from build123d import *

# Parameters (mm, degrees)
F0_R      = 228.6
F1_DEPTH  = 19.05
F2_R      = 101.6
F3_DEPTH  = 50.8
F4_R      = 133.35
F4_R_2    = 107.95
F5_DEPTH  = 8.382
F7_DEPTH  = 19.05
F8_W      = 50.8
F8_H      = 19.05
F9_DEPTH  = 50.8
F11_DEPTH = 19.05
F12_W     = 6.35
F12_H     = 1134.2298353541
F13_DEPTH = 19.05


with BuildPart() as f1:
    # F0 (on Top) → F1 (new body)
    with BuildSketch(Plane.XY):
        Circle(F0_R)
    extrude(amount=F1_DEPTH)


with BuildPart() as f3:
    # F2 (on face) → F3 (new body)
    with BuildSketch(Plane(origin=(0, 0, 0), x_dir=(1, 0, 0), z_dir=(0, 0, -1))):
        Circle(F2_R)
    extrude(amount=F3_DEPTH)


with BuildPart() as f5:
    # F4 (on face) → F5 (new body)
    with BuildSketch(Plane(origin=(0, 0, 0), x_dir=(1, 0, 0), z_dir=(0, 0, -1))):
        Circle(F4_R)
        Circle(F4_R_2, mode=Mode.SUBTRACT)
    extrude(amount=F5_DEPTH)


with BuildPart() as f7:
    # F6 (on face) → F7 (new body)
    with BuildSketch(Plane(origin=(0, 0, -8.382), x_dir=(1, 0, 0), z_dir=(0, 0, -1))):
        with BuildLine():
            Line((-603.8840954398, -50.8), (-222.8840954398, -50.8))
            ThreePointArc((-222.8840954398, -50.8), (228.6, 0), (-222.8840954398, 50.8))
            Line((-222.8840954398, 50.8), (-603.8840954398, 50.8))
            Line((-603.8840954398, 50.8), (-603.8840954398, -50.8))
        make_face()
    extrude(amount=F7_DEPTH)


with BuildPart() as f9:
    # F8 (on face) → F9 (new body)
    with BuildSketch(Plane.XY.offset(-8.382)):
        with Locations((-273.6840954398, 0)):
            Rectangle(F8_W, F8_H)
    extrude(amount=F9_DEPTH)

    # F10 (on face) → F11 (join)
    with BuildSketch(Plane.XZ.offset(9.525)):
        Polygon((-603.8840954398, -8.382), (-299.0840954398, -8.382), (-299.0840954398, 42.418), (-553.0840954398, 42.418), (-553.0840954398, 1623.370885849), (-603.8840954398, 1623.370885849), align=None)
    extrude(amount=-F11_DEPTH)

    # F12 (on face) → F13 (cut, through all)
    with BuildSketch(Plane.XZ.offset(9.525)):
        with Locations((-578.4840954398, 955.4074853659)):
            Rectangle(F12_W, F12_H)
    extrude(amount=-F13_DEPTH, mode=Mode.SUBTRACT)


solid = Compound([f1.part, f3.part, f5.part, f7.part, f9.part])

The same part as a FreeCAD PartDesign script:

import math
import FreeCAD as App
import Part
import Sketcher

V = App.Vector
Q = App.Units.Quantity


def add_polygon(sketch, points):
    """Adds a closed chain of lines whose ends are joined by coincident constraints."""
    first, n = sketch.GeometryCount, len(points)
    for a, b in zip(points, points[1:] + points[:1]):
        sketch.addGeometry(Part.LineSegment(App.Vector(*a, 0), App.Vector(*b, 0)), False)
    for i in range(n):
        sketch.addConstraint(Sketcher.Constraint("Coincident", first + i, 2, first + (i + 1) % n, 1))

doc = App.newDocument("Part")
params = doc.addObject("Spreadsheet::Sheet", "Params")
for row, (alias, value) in enumerate([
    ("sketch1_diameter", "18 in"),
    ("pad1_length", "0.75 in"),
    ("sketch2_diameter", "8 in"),
    ("pad2_length", "2 in"),
    ("sketch3_diameter", "10.5 in"),
    ("sketch3_diameter2", "8.5 in"),
    ("pad3_length", "0.33 in"),
    ("sketch4_radius", "9 in"),
    ("sketch4_width", "15 in"),
    ("sketch4_height", "4 in"),
    ("pad4_length", "0.75 in"),
    ("sketch5_width", "2 in"),
    ("sketch5_height", "0.75 in"),
    ("pad5_length", "2 in"),
    ("sketch6_width", "12 in"),
    ("sketch6_width2", "10 in"),
    ("pad6_length", "0.75 in"),
    ("sketch7_width", "0.25 in"),
], start=1):
    params.set(f"A{row}", alias)
    params.set(f"B{row}", "=" + value)
    params.setAlias(f"B{row}", alias)

body = doc.addObject("PartDesign::Body", "Body")

sketch1 = body.newObject("Sketcher::SketchObject", "Sketch")
sketch1.AttachmentSupport = (doc.getObject("XY_Plane"), [""])
sketch1.MapMode = "FlatFace"
sketch1.addGeometry(Part.Circle(V(0, 0, 0), V(0, 0, 1), 228.6), False)
sketch1.addConstraint(Sketcher.Constraint("Coincident", 0, 3, -1, 1))
sketch1.addConstraint(Sketcher.Constraint("Diameter", 0, Q("18 in")))
sketch1.setExpression("Constraints[1]", "Params.sketch1_diameter")
pad1 = body.newObject("PartDesign::Pad", "Pad")
pad1.Profile = sketch1
pad1.setExpression("Length", "Params.pad1_length")
body2 = doc.addObject("PartDesign::Body", "Body001")

sketch2 = body2.newObject("Sketcher::SketchObject", "Sketch001")
sketch2.AttachmentSupport = (doc.getObject("XY_Plane001"), [""])
sketch2.MapMode = "FlatFace"
sketch2.addGeometry(Part.Circle(V(0, 0, 0), V(0, 0, 1), 101.6), False)
sketch2.addConstraint(Sketcher.Constraint("Coincident", 0, 3, -1, 1))
sketch2.addConstraint(Sketcher.Constraint("Diameter", 0, Q("8 in")))
sketch2.setExpression("Constraints[1]", "Params.sketch2_diameter")
pad2 = body2.newObject("PartDesign::Pad", "Pad001")
pad2.Profile = sketch2
pad2.setExpression("Length", "Params.pad2_length")
pad2.Reversed = True
body3 = doc.addObject("PartDesign::Body", "Body002")

sketch3 = body3.newObject("Sketcher::SketchObject", "Sketch002")
sketch3.AttachmentSupport = (doc.getObject("XY_Plane002"), [""])
sketch3.MapMode = "FlatFace"
sketch3.addGeometry(Part.Circle(V(0, 0, 0), V(0, 0, 1), 133.35), False)
sketch3.addGeometry(Part.Circle(V(0, 0, 0), V(0, 0, 1), 107.95), False)
sketch3.addConstraint(Sketcher.Constraint("Coincident", 0, 3, -1, 1))
sketch3.addConstraint(Sketcher.Constraint("Coincident", 1, 3, -1, 1))
sketch3.addConstraint(Sketcher.Constraint("Diameter", 0, Q("10.5 in")))
sketch3.addConstraint(Sketcher.Constraint("Diameter", 1, Q("8.5 in")))
sketch3.setExpression("Constraints[2]", "Params.sketch3_diameter")
sketch3.setExpression("Constraints[3]", "Params.sketch3_diameter2")
pad3 = body3.newObject("PartDesign::Pad", "Pad002")
pad3.Profile = sketch3
pad3.setExpression("Length", "Params.pad3_length")
pad3.Reversed = True
body4 = doc.addObject("PartDesign::Body", "Body003")

sketch4 = body4.newObject("Sketcher::SketchObject", "Sketch003")
sketch4.AttachmentSupport = (doc.getObject("XY_Plane003"), [""])
sketch4.MapMode = "FlatFace"
sketch4.AttachmentOffset = App.Placement(V(0, 0, -0.33 * 25.4), App.Rotation())
sketch4.addGeometry(Part.LineSegment(V(-603.884095, 50.8, 0), V(-222.884095, 50.8, 0)), False)
sketch4.addGeometry(Part.ArcOfCircle(Part.Circle(V(0, 0, 0), V(0, 0, 1), 228.6), math.radians(-167.160412), math.radians(167.160412)), False)
sketch4.addGeometry(Part.LineSegment(V(-222.884095, -50.8, 0), V(-603.884095, -50.8, 0)), False)
sketch4.addGeometry(Part.LineSegment(V(-603.884095, -50.8, 0), V(-603.884095, 50.8, 0)), False)
sketch4.addConstraint(Sketcher.Constraint("Coincident", 0, 2, 1, 2))
sketch4.addConstraint(Sketcher.Constraint("Coincident", 1, 1, 2, 1))
sketch4.addConstraint(Sketcher.Constraint("Coincident", 2, 2, 3, 1))
sketch4.addConstraint(Sketcher.Constraint("Coincident", 3, 2, 0, 1))
sketch4.addConstraint(Sketcher.Constraint("Horizontal", 0))
sketch4.addConstraint(Sketcher.Constraint("Horizontal", 2))
sketch4.addConstraint(Sketcher.Constraint("Vertical", 3))
sketch4.addConstraint(Sketcher.Constraint("Coincident", 1, 3, -1, 1))
sketch4.addConstraint(Sketcher.Constraint("Vertical", 0, 2, 1, 1))
sketch4.addConstraint(Sketcher.Constraint("Radius", 1, Q("9 in")))
sketch4.addConstraint(Sketcher.Constraint("DistanceX", 0, 1, 0, 2, Q("15 in")))
sketch4.addConstraint(Sketcher.Constraint("DistanceY", 3, 1, 3, 2, Q("4 in")))
sketch4.setExpression("Constraints[9]", "Params.sketch4_radius")
sketch4.setExpression("Constraints[10]", "Params.sketch4_width")
sketch4.setExpression("Constraints[11]", "Params.sketch4_height")
pad4 = body4.newObject("PartDesign::Pad", "Pad003")
pad4.Profile = sketch4
pad4.setExpression("Length", "Params.pad4_length")
pad4.Reversed = True
body5 = doc.addObject("PartDesign::Body", "Body004")

sketch5 = body5.newObject("Sketcher::SketchObject", "Sketch004")
sketch5.AttachmentSupport = (doc.getObject("XY_Plane004"), [""])
sketch5.MapMode = "FlatFace"
sketch5.AttachmentOffset = App.Placement(V(0, 0, -0.33 * 25.4), App.Rotation())
add_polygon(sketch5, [(-299.084095, 9.525), (-299.084095, -9.525), (-248.284095, -9.525), (-248.284095, 9.525)])
sketch5.addConstraint(Sketcher.Constraint("Vertical", 0))
sketch5.addConstraint(Sketcher.Constraint("Horizontal", 1))
sketch5.addConstraint(Sketcher.Constraint("Vertical", 2))
sketch5.addConstraint(Sketcher.Constraint("Horizontal", 3))
sketch5.addConstraint(Sketcher.Constraint("DistanceX", 1, 1, 1, 2, Q("2 in")))
sketch5.addConstraint(Sketcher.Constraint("DistanceY", 0, 2, 0, 1, Q("0.75 in")))
sketch5.addConstraint(Sketcher.Constraint("DistanceY", 0, 2, -1, 1, Q("0.375 in")))
sketch5.addConstraint(Sketcher.Constraint("DistanceX", 0, 2, -1, 1, 299.084095))
sketch5.setExpression("Constraints[8]", "Params.sketch5_width")
sketch5.setExpression("Constraints[9]", "Params.sketch5_height")
pad5 = body5.newObject("PartDesign::Pad", "Pad004")
pad5.Profile = sketch5
pad5.setExpression("Length", "Params.pad5_length")

sketch6 = body5.newObject("Sketcher::SketchObject", "Sketch005")
sketch6.AttachmentSupport = (doc.getObject("XZ_Plane004"), [""])
sketch6.MapMode = "FlatFace"
sketch6.AttachmentOffset = App.Placement(V(0, 0, 0.375 * 25.4), App.Rotation())
add_polygon(sketch6, [(-603.884095, -8.382), (-299.084095, -8.382), (-299.084095, 42.418), (-553.084095, 42.418), (-553.084095, 1623.370886), (-603.884095, 1623.370886)])
sketch6.addConstraint(Sketcher.Constraint("Horizontal", 0))
sketch6.addConstraint(Sketcher.Constraint("Vertical", 1))
sketch6.addConstraint(Sketcher.Constraint("Horizontal", 2))
sketch6.addConstraint(Sketcher.Constraint("Vertical", 3))
sketch6.addConstraint(Sketcher.Constraint("Horizontal", 4))
sketch6.addConstraint(Sketcher.Constraint("Vertical", 5))
sketch6.addConstraint(Sketcher.Constraint("Equal", 4, 1))
sketch6.addConstraint(Sketcher.Constraint("DistanceX", 0, 1, 0, 2, Q("12 in")))
sketch6.addConstraint(Sketcher.Constraint("DistanceX", 2, 2, 2, 1, Q("10 in")))
sketch6.addConstraint(Sketcher.Constraint("DistanceY", 0, 2, -1, 1, Q("0.33 in")))
sketch6.addConstraint(Sketcher.Constraint("DistanceY", 3, 1, 3, 2, 1580.952886))
sketch6.addConstraint(Sketcher.Constraint("DistanceX", 0, 2, -1, 1, 299.084095))
sketch6.setExpression("Constraints[13]", "Params.sketch6_width")
sketch6.setExpression("Constraints[14]", "Params.sketch6_width2")
pad6 = body5.newObject("PartDesign::Pad", "Pad005")
pad6.Profile = sketch6
pad6.setExpression("Length", "Params.pad6_length")
pad6.Reversed = True

sketch7 = body5.newObject("Sketcher::SketchObject", "Sketch006")
sketch7.AttachmentSupport = (doc.getObject("XZ_Plane004"), [""])
sketch7.MapMode = "FlatFace"
sketch7.AttachmentOffset = App.Placement(V(0, 0, 0.375 * 25.4), App.Rotation())
add_polygon(sketch7, [(-581.659095, 1522.522403), (-581.659095, 388.292568), (-575.309095, 388.292568), (-575.309095, 1522.522403)])
sketch7.addConstraint(Sketcher.Constraint("Vertical", 0))
sketch7.addConstraint(Sketcher.Constraint("Horizontal", 1))
sketch7.addConstraint(Sketcher.Constraint("Vertical", 2))
sketch7.addConstraint(Sketcher.Constraint("Horizontal", 3))
sketch7.addConstraint(Sketcher.Constraint("DistanceX", 1, 1, 1, 2, Q("0.25 in")))
sketch7.addConstraint(Sketcher.Constraint("DistanceY", 0, 2, 0, 1, 1134.229835))
sketch7.addConstraint(Sketcher.Constraint("DistanceX", 0, 2, -1, 1, 581.659095))
sketch7.addConstraint(Sketcher.Constraint("DistanceY", -1, 1, 0, 2, 388.292568))
sketch7.setExpression("Constraints[8]", "Params.sketch7_width")
pocket1 = body5.newObject("PartDesign::Pocket", "Pocket")
pocket1.Profile = sketch7
pocket1.Type = "ThroughAll"

doc.recompute()
